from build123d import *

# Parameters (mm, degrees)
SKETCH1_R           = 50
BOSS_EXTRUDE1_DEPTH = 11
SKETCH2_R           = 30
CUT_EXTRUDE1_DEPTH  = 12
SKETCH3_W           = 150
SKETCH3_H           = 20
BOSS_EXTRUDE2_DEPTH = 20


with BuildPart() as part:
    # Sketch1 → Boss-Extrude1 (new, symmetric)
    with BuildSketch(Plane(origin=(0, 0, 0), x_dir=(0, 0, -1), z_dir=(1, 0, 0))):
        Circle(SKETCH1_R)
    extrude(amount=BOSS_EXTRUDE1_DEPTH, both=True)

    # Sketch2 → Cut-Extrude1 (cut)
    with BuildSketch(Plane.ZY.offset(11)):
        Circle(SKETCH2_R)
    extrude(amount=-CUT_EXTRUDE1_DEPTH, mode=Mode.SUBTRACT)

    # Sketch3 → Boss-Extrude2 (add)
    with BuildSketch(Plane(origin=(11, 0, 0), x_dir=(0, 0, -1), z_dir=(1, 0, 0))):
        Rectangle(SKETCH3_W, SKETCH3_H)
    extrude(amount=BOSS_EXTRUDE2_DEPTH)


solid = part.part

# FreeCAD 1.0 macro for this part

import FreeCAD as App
import Part
import Sketcher
from FreeCAD import Vector

doc = App.newDocument("Part")
params = doc.addObject("Spreadsheet::Sheet", "Params")
for row, (alias, value) in enumerate([
    ("sketch1_diameter", "100 mm"),
    ("pad1_length", "22 mm"),
    ("sketch2_diameter", "60 mm"),
    ("pocket1_length", "12 mm"),
    ("sketch3_width", "20 mm"),
    ("sketch3_height", "150 mm"),
    ("pad2_length", "20 mm"),
], start=1):
    params.set(f"A{row}", alias)
    params.set(f"B{row}", "=" + value)
    params.setAlias(f"B{row}", alias)

body = doc.addObject("PartDesign::Body", "Body")

# Sketch on YZ plane
sketch1 = body.newObject("Sketcher::SketchObject", "Sketch")
sketch1.AttachmentSupport = (doc.getObject("YZ_Plane"), [""])
sketch1.MapMode = "FlatFace"
sketch1.addGeometry(Part.Circle(Vector(0, 0, 0), Vector(0, 0, 1), 50), False)
sketch1.addConstraint([
    Sketcher.Constraint("Coincident", 0, 3, -1, 1),
    Sketcher.Constraint("Diameter", 0, 100.0),
])
sketch1.setExpression("Constraints[1]", "Params.sketch1_diameter")
pad1 = body.newObject("PartDesign::Pad", "Pad")
pad1.Profile = sketch1
pad1.setExpression("Length", "Params.pad1_length")
pad1.Midplane = True

# Sketch on YZ plane
sketch2 = body.newObject("Sketcher::SketchObject", "Sketch001")
sketch2.AttachmentSupport = (doc.getObject("YZ_Plane"), [""])
sketch2.MapMode = "FlatFace"
sketch2.AttachmentOffset = App.Placement(Vector(0, 0, -11), App.Rotation())
sketch2.addGeometry(Part.Circle(Vector(0, 0, 0), Vector(0, 0, 1), 30), False)
sketch2.addConstraint([
    Sketcher.Constraint("Coincident", 0, 3, -1, 1),
    Sketcher.Constraint("Diameter", 0, 60.0),
])
sketch2.setExpression("Constraints[1]", "Params.sketch2_diameter")
pocket1 = body.newObject("PartDesign::Pocket", "Pocket")
pocket1.Profile = sketch2
pocket1.setExpression("Length", "Params.pocket1_length")
pocket1.Reversed = True

# Sketch on YZ plane
sketch3 = body.newObject("Sketcher::SketchObject", "Sketch002")
sketch3.AttachmentSupport = (doc.getObject("YZ_Plane"), [""])
sketch3.MapMode = "FlatFace"
sketch3.AttachmentOffset = App.Placement(Vector(0, 0, 11), App.Rotation())
sketch3.addGeometry([
    Part.LineSegment(Vector(10, 75, 0), Vector(-10, 75, 0)),
    Part.LineSegment(Vector(-10, 75, 0), Vector(-10, -75, 0)),
    Part.LineSegment(Vector(-10, -75, 0), Vector(10, -75, 0)),
    Part.LineSegment(Vector(10, -75, 0), Vector(10, 75, 0)),
], False)
sketch3.addConstraint([
    Sketcher.Constraint("Coincident", 0, 2, 1, 1),
    Sketcher.Constraint("Coincident", 1, 2, 2, 1),
    Sketcher.Constraint("Coincident", 2, 2, 3, 1),
    Sketcher.Constraint("Coincident", 3, 2, 0, 1),
    Sketcher.Constraint("Horizontal", 0),
    Sketcher.Constraint("Vertical", 1),
    Sketcher.Constraint("Horizontal", 2),
    Sketcher.Constraint("Vertical", 3),
    Sketcher.Constraint("Symmetric", 0, 2, 2, 2, -1, 1),
    Sketcher.Constraint("DistanceX", 0, 2, 0, 1, 20.0),
    Sketcher.Constraint("DistanceY", 1, 2, 1, 1, 150.0),
])
sketch3.setExpression("Constraints[9]", "Params.sketch3_width")
sketch3.setExpression("Constraints[10]", "Params.sketch3_height")
pad2 = body.newObject("PartDesign::Pad", "Pad001")
pad2.Profile = sketch3
pad2.setExpression("Length", "Params.pad2_length")

doc.recompute()
